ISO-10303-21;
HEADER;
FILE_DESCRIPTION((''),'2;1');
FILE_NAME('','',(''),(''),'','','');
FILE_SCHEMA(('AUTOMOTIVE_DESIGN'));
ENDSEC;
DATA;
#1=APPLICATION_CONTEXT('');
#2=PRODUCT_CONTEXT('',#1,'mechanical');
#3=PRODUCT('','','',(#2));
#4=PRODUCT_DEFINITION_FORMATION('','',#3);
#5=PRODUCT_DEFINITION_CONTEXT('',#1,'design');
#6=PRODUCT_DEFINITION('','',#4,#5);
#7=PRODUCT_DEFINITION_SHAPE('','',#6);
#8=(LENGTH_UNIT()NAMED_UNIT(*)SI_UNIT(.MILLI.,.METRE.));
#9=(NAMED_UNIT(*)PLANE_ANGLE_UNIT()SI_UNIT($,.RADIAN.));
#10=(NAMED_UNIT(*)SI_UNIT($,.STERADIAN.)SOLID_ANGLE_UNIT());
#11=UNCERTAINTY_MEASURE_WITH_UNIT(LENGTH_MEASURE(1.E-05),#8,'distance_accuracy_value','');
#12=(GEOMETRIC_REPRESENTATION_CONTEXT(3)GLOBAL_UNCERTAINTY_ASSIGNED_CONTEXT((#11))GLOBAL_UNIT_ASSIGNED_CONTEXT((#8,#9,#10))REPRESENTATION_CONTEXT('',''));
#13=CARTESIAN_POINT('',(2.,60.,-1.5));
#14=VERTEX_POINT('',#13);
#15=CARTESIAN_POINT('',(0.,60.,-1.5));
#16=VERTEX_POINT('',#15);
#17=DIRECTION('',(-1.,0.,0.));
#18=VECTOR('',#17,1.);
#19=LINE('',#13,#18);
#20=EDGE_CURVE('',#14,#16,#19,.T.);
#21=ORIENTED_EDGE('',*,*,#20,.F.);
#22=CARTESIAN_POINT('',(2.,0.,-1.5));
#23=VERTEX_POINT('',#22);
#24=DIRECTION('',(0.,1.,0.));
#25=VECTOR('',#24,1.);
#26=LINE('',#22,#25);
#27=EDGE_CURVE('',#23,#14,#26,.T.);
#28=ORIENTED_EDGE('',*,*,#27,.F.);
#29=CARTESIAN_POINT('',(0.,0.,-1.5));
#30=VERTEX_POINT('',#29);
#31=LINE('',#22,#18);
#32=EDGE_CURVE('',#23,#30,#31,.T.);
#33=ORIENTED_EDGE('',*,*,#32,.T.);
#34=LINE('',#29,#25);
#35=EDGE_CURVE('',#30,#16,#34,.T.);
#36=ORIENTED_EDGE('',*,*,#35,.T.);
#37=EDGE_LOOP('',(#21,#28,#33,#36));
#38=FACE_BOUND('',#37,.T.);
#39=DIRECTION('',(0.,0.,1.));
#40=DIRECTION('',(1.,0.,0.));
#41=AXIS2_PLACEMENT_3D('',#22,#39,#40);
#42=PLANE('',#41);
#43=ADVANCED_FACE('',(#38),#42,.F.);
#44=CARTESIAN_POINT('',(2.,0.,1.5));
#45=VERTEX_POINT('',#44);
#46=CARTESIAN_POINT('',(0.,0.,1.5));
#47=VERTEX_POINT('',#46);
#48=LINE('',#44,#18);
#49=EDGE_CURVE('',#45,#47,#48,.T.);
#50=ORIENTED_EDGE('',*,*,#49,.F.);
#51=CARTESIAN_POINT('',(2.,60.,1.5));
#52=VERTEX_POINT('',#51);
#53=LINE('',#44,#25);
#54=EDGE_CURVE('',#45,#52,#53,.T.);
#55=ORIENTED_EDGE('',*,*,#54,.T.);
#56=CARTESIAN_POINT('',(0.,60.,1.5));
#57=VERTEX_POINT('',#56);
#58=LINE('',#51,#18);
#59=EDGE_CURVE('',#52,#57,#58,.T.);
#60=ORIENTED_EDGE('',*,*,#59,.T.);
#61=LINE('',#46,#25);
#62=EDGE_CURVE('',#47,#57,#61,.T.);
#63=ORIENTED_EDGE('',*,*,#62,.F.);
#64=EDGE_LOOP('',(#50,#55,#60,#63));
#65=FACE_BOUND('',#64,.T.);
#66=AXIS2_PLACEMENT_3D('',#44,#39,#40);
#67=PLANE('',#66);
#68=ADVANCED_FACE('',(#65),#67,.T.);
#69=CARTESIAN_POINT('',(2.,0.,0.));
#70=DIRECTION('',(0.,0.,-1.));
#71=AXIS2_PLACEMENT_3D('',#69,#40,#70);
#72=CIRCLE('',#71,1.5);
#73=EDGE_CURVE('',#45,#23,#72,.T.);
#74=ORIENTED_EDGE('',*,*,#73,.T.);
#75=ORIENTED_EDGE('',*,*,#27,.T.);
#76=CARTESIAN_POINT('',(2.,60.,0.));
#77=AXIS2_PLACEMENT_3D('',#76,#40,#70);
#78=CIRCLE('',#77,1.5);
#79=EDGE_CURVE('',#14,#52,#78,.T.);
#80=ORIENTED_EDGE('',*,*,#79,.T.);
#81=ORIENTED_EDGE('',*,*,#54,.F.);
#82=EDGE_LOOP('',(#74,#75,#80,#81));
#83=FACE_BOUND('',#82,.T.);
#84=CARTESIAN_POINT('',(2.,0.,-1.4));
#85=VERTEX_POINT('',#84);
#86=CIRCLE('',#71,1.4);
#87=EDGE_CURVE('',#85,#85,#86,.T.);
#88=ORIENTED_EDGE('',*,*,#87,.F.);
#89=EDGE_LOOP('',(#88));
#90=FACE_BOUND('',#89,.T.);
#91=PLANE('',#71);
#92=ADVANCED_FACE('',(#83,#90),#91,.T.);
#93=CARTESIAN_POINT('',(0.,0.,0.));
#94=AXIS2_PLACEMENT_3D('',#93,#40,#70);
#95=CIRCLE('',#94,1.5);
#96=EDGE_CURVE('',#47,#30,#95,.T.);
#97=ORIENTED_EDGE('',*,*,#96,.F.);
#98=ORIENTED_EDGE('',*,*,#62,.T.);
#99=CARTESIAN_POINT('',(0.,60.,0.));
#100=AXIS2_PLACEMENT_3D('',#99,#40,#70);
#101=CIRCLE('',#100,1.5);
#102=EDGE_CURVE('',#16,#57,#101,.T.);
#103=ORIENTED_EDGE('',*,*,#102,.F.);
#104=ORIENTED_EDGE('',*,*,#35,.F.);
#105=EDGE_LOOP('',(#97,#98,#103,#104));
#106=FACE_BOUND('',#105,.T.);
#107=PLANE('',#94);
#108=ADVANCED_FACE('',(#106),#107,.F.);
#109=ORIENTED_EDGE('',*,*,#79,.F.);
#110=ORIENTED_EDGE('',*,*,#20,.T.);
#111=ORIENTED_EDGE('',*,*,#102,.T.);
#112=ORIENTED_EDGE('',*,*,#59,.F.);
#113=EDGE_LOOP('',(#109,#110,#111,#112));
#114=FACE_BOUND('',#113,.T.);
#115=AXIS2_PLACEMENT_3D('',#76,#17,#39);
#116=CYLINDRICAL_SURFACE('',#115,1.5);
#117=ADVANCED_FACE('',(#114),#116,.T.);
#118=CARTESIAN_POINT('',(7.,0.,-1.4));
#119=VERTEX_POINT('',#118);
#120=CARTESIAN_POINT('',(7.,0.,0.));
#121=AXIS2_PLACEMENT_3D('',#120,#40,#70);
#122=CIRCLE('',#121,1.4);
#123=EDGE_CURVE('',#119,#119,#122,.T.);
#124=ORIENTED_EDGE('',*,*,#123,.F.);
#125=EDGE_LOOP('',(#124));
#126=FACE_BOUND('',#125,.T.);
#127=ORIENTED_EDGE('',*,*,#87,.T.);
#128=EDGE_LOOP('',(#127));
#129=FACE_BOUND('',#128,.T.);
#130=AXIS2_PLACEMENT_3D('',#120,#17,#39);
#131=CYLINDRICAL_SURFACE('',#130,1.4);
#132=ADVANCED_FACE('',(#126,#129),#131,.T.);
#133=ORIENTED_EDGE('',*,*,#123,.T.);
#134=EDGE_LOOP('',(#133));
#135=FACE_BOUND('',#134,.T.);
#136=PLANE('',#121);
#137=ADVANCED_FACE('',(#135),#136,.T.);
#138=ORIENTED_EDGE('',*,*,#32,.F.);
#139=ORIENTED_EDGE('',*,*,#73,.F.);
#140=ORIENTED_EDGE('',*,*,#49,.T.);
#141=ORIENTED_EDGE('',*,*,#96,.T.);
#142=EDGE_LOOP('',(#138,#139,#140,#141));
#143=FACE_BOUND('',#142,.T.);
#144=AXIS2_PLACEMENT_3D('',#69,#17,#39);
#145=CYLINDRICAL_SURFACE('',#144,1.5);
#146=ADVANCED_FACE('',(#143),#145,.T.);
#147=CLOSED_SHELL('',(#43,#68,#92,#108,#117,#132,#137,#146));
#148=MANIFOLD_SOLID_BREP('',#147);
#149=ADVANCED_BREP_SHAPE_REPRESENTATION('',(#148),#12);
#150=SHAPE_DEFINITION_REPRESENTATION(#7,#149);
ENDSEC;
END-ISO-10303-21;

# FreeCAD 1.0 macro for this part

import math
import FreeCAD as App
import Part
import Sketcher

V = App.Vector

doc = App.newDocument("Part")
body = doc.addObject("PartDesign::Body", "Body")

# Sketch on YZ plane
sketch1 = doc.addObject("Sketcher::SketchObject", "Sketch")
body.addObject(sketch1)
sketch1.AttachmentSupport = (doc.YZ_Plane, [""])
sketch1.MapMode = "FlatFace"
sketch1.addGeometry([
    Part.LineSegment(V(60, 1.5, 0), V(0, 1.5, 0)),
    Part.ArcOfCircle(Part.Circle(V(0, 0, 0), V(0, 0, 1), 1.5), math.radians(90), math.radians(270)),
    Part.LineSegment(V(0, -1.5, 0), V(60, -1.5, 0)),
    Part.ArcOfCircle(Part.Circle(V(60, 0, 0), V(0, 0, 1), 1.5), math.radians(-90), math.radians(90)),
], False)
sketch1.addConstraint([
    Sketcher.Constraint("Tangent", 0, 2, 1, 1),
    Sketcher.Constraint("Tangent", 1, 2, 2, 1),
    Sketcher.Constraint("Tangent", 2, 2, 3, 1),
    Sketcher.Constraint("Tangent", 3, 2, 0, 1),
    Sketcher.Constraint("Horizontal", 0),
    Sketcher.Constraint("Horizontal", 2),
    Sketcher.Constraint("Coincident", 1, 3, -1, 1),
    Sketcher.Constraint("Radius", 1, 1.5),
    Sketcher.Constraint("DistanceX", 0, 2, 0, 1, 60.0),
])
pad1 = doc.addObject("PartDesign::Pad", "Pad")
body.addObject(pad1)
pad1.Profile = sketch1
pad1.Length = 2

# Sketch on YZ plane
sketch2 = doc.addObject("Sketcher::SketchObject", "Sketch001")
body.addObject(sketch2)
sketch2.AttachmentSupport = (doc.YZ_Plane, [""])
sketch2.MapMode = "FlatFace"
sketch2.AttachmentOffset = App.Placement(V(0, 0, 2), App.Rotation())
sketch2.addGeometry(Part.Circle(V(0, 0, 0), V(0, 0, 1), 1.4), False)
sketch2.addConstraint([
    Sketcher.Constraint("Coincident", 0, 3, -1, 1),
    Sketcher.Constraint("Diameter", 0, 2.8),
])
pad2 = doc.addObject("PartDesign::Pad", "Pad001")
body.addObject(pad2)
pad2.Profile = sketch2
pad2.Length = 5

doc.recompute()
